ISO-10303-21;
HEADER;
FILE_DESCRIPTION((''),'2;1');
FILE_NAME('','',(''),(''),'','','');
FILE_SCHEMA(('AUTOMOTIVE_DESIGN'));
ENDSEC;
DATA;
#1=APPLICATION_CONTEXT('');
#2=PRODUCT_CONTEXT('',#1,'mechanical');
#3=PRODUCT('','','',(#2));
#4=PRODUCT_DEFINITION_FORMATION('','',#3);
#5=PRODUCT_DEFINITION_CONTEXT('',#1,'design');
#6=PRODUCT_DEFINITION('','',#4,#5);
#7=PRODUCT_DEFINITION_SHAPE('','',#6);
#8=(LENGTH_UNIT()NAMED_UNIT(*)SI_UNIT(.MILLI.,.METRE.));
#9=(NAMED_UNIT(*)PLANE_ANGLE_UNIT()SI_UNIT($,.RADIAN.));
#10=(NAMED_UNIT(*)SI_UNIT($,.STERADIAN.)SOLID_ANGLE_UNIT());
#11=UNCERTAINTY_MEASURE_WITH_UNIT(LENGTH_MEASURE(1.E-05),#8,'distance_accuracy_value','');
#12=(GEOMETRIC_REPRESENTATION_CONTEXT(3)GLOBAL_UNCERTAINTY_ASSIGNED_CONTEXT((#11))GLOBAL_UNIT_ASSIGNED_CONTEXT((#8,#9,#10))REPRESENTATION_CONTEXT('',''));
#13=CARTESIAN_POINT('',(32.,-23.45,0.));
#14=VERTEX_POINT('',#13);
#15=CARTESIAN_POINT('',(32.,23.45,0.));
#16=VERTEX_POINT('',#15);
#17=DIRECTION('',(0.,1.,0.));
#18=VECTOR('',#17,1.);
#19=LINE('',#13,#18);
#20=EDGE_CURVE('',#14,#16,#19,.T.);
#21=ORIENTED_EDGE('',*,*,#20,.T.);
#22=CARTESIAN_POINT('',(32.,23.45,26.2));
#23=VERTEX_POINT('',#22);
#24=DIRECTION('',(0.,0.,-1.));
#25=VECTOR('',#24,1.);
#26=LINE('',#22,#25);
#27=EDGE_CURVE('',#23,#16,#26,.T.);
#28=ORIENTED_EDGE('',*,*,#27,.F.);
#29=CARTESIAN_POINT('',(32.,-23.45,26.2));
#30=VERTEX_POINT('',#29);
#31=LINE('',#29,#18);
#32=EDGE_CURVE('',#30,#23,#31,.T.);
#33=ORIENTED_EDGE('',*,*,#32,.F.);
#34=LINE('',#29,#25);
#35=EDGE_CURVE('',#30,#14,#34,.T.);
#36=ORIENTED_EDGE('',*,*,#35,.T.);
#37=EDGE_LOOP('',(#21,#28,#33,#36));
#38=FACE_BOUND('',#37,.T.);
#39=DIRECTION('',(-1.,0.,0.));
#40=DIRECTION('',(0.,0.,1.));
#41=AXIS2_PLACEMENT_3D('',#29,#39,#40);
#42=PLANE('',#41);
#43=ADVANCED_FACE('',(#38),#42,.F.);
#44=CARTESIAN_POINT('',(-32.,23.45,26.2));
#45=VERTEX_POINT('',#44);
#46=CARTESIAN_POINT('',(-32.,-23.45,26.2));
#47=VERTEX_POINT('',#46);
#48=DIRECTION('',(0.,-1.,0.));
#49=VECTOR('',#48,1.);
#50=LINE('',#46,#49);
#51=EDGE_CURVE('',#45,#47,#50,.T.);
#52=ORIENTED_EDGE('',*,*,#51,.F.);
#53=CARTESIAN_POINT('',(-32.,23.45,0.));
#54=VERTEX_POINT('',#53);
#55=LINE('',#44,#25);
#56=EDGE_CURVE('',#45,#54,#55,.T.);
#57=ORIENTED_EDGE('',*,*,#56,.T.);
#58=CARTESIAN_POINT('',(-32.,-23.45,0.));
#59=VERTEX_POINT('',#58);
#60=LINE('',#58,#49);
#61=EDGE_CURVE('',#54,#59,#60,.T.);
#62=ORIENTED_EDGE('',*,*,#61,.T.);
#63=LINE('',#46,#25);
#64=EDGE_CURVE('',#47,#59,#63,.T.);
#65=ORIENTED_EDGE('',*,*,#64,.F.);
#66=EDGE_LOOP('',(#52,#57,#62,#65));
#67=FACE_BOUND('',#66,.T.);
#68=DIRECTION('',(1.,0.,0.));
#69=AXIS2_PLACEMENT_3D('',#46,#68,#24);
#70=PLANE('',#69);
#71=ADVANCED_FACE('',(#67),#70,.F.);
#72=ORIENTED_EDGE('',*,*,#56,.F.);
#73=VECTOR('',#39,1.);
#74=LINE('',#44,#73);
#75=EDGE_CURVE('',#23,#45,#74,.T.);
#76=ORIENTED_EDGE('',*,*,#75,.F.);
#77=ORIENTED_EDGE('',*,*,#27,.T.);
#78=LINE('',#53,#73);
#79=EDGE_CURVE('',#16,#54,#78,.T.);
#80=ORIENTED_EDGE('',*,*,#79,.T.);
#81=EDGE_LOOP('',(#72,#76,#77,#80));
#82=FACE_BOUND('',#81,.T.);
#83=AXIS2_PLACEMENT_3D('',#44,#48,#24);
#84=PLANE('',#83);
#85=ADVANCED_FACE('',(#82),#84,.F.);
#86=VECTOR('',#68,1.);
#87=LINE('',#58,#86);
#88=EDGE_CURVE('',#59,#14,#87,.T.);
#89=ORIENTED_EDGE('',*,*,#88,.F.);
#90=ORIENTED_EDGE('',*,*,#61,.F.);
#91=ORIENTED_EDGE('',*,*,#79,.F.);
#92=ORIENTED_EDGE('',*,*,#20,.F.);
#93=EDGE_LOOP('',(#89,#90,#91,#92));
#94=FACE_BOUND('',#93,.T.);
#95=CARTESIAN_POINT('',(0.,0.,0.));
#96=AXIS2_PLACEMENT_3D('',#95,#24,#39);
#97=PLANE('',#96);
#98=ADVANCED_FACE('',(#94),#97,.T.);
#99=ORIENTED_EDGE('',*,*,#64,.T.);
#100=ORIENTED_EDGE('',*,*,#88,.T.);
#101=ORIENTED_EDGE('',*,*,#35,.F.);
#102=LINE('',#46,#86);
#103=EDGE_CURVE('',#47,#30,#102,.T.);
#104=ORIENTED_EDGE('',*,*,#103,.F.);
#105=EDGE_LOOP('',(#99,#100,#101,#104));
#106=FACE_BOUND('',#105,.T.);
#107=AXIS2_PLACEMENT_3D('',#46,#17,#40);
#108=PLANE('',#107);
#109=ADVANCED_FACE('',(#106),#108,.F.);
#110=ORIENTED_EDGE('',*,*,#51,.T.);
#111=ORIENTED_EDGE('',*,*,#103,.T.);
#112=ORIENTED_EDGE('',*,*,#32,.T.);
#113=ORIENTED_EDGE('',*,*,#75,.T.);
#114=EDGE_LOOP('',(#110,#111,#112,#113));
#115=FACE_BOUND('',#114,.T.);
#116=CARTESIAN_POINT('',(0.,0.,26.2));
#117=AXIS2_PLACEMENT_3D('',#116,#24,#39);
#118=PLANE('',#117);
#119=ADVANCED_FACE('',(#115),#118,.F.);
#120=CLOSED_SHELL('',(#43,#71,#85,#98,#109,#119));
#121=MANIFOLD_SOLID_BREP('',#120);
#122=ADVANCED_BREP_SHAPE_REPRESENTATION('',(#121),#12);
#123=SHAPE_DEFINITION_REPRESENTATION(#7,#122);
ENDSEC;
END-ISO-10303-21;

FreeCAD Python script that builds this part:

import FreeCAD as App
import Part
import Sketcher
from FreeCAD import Vector
Q = App.Units.Quantity

doc = App.newDocument("Part")
body = doc.addObject("PartDesign::Body", "Body")

sketch1 = body.newObject("Sketcher::SketchObject", "Sketch")
sketch1.AttachmentSupport = (doc.getObject("XY_Plane"), [""])
sketch1.MapMode = "FlatFace"
sketch1.addGeometry([
    Part.LineSegment(Vector(-32, 23, 0), Vector(-32, -23, 0)),
    Part.LineSegment(Vector(-32, -23, 0), Vector(32, -23, 0)),
    Part.LineSegment(Vector(32, -23, 0), Vector(32, 23, 0)),
    Part.LineSegment(Vector(32, 23, 0), Vector(-32, 23, 0)),
], False)
sketch1.addConstraint([
    Sketcher.Constraint("Coincident", 0, 2, 1, 1),
    Sketcher.Constraint("Coincident", 1, 2, 2, 1),
    Sketcher.Constraint("Coincident", 2, 2, 3, 1),
    Sketcher.Constraint("Coincident", 3, 2, 0, 1),
    Sketcher.Constraint("Vertical", 0),
    Sketcher.Constraint("Horizontal", 1),
    Sketcher.Constraint("Vertical", 2),
    Sketcher.Constraint("Horizontal", 3),
    Sketcher.Constraint("Symmetric", 0, 2, 2, 2, -1, 1),
    Sketcher.Constraint("DistanceX", 1, 1, 1, 2, Q("64 mm")),
    Sketcher.Constraint("DistanceY", 0, 2, 0, 1, Q("46.9 mm")),
])
pad1 = body.newObject("PartDesign::Pad", "Pad")
pad1.Profile = sketch1
pad1.Length = 26.2

doc.recompute()
